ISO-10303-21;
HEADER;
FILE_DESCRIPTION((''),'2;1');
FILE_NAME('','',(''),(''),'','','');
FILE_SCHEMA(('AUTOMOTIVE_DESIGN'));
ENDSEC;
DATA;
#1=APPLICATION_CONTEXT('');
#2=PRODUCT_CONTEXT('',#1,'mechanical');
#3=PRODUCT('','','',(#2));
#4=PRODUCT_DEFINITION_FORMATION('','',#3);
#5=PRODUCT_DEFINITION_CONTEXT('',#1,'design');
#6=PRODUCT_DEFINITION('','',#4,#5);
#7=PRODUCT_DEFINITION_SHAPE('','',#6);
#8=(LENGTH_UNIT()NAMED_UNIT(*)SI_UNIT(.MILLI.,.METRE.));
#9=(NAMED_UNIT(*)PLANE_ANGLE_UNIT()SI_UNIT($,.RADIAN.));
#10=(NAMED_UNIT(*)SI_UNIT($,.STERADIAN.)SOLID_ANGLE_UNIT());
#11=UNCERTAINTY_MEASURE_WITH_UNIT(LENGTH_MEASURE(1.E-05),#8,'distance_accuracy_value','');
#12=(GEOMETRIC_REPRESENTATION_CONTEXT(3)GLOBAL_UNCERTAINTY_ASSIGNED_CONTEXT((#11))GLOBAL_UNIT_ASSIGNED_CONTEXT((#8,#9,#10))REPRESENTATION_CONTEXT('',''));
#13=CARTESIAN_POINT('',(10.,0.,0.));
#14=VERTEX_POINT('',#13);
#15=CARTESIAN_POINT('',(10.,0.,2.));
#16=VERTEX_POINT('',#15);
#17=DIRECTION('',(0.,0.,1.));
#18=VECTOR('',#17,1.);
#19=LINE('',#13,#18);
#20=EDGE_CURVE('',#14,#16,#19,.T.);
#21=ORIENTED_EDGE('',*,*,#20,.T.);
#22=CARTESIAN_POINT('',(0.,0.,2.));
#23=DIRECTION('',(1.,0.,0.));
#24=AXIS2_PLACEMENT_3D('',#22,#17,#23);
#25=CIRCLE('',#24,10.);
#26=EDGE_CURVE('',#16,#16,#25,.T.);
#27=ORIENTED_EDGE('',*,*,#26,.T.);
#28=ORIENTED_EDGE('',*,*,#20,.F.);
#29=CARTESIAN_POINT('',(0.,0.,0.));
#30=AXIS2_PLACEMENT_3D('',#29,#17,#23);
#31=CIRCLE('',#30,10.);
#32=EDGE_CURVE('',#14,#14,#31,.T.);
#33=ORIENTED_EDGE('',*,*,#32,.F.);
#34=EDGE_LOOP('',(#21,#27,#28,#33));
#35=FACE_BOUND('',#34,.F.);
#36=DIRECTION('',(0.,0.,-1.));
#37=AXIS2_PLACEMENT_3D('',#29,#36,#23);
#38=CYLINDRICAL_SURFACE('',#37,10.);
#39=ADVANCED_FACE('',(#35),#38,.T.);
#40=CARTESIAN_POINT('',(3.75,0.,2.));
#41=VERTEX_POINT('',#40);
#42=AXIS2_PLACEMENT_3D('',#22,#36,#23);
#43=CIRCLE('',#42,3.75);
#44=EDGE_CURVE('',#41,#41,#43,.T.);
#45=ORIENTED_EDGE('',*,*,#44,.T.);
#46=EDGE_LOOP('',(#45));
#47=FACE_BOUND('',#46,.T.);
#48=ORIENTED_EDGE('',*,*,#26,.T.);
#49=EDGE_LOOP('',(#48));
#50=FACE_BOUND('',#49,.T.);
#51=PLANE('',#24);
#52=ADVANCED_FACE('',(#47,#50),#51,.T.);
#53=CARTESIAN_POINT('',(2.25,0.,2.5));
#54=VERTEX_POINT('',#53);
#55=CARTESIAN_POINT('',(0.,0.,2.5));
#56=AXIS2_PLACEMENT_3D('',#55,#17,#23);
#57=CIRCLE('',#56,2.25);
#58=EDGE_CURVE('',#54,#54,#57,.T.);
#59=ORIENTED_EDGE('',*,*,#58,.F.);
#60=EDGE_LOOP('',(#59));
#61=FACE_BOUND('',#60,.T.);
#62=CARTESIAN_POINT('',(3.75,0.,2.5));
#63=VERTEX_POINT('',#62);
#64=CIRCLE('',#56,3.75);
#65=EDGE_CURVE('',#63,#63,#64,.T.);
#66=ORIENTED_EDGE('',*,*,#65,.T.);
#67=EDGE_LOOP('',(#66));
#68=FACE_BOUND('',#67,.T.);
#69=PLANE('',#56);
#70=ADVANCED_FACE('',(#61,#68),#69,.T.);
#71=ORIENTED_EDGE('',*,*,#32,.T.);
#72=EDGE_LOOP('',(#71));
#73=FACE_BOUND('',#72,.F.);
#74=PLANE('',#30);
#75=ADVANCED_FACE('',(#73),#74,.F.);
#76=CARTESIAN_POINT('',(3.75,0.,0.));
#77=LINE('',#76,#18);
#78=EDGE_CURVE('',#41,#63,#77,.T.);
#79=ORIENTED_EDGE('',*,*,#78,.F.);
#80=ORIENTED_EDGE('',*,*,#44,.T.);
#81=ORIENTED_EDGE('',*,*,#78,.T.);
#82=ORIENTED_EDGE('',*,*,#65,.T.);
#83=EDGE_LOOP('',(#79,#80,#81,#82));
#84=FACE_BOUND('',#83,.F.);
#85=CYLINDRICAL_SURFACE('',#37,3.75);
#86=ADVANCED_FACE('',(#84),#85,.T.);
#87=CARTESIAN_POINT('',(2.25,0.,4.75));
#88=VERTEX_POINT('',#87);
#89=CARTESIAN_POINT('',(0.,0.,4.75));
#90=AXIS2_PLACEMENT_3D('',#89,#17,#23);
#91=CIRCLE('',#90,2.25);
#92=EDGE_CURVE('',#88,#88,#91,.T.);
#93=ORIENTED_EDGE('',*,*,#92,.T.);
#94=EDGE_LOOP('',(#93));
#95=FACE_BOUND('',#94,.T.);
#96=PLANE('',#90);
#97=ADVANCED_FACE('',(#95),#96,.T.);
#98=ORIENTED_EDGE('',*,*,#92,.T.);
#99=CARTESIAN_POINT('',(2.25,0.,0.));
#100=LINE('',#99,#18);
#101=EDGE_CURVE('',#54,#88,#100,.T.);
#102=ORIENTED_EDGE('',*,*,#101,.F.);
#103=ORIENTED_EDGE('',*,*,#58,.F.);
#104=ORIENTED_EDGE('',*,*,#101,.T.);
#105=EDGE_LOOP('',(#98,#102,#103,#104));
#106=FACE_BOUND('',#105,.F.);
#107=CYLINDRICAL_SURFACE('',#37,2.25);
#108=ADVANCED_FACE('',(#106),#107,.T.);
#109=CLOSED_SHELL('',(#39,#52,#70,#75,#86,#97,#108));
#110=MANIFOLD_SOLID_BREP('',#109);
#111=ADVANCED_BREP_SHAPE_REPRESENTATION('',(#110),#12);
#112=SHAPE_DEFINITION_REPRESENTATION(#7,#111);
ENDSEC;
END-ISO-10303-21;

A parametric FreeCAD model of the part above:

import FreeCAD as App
import Part
import Sketcher

doc = App.newDocument("Part")
body = doc.addObject("PartDesign::Body", "Body")

sketch1 = body.newObject("Sketcher::SketchObject", "Sketch")
sketch1.AttachmentSupport = (doc.getObject("XY_Plane"), [""])
sketch1.MapMode = "FlatFace"
sketch1.addGeometry(Part.Circle(App.Vector(0, 0, 0), App.Vector(0, 0, 1), 10), False)
sketch1.addGeometry(Part.Circle(App.Vector(0, 0, 0), App.Vector(0, 0, 1), 2.2), False)
sketch1.addConstraint(Sketcher.Constraint("Coincident", 0, 3, -1, 1))
sketch1.addConstraint(Sketcher.Constraint("Coincident", 1, 3, -1, 1))
sketch1.addConstraint(Sketcher.Constraint("Diameter", 0, 20.0))
sketch1.addConstraint(Sketcher.Constraint("Diameter", 1, 4.5))
pad1 = body.newObject("PartDesign::Pad", "Pad")
pad1.Profile = sketch1
pad1.Length = 2

sketch2 = body.newObject("Sketcher::SketchObject", "Sketch001")
sketch2.AttachmentSupport = (doc.getObject("XY_Plane"), [""])
sketch2.MapMode = "FlatFace"
sketch2.addGeometry(Part.Circle(App.Vector(0, 0, 0), App.Vector(0, 0, 1), 2.2), False)
sketch2.addConstraint(Sketcher.Constraint("Coincident", 0, 3, -1, 1))
sketch2.addConstraint(Sketcher.Constraint("Diameter", 0, 4.5))
pad2 = body.newObject("PartDesign::Pad", "Pad001")
pad2.Profile = sketch2
pad2.Length = 4.75

sketch3 = body.newObject("Sketcher::SketchObject", "Sketch002")
sketch3.AttachmentSupport = (doc.getObject("XY_Plane"), [""])
sketch3.MapMode = "FlatFace"
sketch3.addGeometry(Part.Circle(App.Vector(0, 0, 0), App.Vector(0, 0, 1), 3.8), False)
sketch3.addGeometry(Part.Circle(App.Vector(0, 0, 0), App.Vector(0, 0, 1), 2.2), False)
sketch3.addConstraint(Sketcher.Constraint("Coincident", 0, 3, -1, 1))
sketch3.addConstraint(Sketcher.Constraint("Coincident", 1, 3, -1, 1))
sketch3.addConstraint(Sketcher.Constraint("Diameter", 0, 7.5))
sketch3.addConstraint(Sketcher.Constraint("Diameter", 1, 4.5))
pad3 = body.newObject("PartDesign::Pad", "Pad002")
pad3.Profile = sketch3
pad3.Length = 2.5

doc.recompute()
